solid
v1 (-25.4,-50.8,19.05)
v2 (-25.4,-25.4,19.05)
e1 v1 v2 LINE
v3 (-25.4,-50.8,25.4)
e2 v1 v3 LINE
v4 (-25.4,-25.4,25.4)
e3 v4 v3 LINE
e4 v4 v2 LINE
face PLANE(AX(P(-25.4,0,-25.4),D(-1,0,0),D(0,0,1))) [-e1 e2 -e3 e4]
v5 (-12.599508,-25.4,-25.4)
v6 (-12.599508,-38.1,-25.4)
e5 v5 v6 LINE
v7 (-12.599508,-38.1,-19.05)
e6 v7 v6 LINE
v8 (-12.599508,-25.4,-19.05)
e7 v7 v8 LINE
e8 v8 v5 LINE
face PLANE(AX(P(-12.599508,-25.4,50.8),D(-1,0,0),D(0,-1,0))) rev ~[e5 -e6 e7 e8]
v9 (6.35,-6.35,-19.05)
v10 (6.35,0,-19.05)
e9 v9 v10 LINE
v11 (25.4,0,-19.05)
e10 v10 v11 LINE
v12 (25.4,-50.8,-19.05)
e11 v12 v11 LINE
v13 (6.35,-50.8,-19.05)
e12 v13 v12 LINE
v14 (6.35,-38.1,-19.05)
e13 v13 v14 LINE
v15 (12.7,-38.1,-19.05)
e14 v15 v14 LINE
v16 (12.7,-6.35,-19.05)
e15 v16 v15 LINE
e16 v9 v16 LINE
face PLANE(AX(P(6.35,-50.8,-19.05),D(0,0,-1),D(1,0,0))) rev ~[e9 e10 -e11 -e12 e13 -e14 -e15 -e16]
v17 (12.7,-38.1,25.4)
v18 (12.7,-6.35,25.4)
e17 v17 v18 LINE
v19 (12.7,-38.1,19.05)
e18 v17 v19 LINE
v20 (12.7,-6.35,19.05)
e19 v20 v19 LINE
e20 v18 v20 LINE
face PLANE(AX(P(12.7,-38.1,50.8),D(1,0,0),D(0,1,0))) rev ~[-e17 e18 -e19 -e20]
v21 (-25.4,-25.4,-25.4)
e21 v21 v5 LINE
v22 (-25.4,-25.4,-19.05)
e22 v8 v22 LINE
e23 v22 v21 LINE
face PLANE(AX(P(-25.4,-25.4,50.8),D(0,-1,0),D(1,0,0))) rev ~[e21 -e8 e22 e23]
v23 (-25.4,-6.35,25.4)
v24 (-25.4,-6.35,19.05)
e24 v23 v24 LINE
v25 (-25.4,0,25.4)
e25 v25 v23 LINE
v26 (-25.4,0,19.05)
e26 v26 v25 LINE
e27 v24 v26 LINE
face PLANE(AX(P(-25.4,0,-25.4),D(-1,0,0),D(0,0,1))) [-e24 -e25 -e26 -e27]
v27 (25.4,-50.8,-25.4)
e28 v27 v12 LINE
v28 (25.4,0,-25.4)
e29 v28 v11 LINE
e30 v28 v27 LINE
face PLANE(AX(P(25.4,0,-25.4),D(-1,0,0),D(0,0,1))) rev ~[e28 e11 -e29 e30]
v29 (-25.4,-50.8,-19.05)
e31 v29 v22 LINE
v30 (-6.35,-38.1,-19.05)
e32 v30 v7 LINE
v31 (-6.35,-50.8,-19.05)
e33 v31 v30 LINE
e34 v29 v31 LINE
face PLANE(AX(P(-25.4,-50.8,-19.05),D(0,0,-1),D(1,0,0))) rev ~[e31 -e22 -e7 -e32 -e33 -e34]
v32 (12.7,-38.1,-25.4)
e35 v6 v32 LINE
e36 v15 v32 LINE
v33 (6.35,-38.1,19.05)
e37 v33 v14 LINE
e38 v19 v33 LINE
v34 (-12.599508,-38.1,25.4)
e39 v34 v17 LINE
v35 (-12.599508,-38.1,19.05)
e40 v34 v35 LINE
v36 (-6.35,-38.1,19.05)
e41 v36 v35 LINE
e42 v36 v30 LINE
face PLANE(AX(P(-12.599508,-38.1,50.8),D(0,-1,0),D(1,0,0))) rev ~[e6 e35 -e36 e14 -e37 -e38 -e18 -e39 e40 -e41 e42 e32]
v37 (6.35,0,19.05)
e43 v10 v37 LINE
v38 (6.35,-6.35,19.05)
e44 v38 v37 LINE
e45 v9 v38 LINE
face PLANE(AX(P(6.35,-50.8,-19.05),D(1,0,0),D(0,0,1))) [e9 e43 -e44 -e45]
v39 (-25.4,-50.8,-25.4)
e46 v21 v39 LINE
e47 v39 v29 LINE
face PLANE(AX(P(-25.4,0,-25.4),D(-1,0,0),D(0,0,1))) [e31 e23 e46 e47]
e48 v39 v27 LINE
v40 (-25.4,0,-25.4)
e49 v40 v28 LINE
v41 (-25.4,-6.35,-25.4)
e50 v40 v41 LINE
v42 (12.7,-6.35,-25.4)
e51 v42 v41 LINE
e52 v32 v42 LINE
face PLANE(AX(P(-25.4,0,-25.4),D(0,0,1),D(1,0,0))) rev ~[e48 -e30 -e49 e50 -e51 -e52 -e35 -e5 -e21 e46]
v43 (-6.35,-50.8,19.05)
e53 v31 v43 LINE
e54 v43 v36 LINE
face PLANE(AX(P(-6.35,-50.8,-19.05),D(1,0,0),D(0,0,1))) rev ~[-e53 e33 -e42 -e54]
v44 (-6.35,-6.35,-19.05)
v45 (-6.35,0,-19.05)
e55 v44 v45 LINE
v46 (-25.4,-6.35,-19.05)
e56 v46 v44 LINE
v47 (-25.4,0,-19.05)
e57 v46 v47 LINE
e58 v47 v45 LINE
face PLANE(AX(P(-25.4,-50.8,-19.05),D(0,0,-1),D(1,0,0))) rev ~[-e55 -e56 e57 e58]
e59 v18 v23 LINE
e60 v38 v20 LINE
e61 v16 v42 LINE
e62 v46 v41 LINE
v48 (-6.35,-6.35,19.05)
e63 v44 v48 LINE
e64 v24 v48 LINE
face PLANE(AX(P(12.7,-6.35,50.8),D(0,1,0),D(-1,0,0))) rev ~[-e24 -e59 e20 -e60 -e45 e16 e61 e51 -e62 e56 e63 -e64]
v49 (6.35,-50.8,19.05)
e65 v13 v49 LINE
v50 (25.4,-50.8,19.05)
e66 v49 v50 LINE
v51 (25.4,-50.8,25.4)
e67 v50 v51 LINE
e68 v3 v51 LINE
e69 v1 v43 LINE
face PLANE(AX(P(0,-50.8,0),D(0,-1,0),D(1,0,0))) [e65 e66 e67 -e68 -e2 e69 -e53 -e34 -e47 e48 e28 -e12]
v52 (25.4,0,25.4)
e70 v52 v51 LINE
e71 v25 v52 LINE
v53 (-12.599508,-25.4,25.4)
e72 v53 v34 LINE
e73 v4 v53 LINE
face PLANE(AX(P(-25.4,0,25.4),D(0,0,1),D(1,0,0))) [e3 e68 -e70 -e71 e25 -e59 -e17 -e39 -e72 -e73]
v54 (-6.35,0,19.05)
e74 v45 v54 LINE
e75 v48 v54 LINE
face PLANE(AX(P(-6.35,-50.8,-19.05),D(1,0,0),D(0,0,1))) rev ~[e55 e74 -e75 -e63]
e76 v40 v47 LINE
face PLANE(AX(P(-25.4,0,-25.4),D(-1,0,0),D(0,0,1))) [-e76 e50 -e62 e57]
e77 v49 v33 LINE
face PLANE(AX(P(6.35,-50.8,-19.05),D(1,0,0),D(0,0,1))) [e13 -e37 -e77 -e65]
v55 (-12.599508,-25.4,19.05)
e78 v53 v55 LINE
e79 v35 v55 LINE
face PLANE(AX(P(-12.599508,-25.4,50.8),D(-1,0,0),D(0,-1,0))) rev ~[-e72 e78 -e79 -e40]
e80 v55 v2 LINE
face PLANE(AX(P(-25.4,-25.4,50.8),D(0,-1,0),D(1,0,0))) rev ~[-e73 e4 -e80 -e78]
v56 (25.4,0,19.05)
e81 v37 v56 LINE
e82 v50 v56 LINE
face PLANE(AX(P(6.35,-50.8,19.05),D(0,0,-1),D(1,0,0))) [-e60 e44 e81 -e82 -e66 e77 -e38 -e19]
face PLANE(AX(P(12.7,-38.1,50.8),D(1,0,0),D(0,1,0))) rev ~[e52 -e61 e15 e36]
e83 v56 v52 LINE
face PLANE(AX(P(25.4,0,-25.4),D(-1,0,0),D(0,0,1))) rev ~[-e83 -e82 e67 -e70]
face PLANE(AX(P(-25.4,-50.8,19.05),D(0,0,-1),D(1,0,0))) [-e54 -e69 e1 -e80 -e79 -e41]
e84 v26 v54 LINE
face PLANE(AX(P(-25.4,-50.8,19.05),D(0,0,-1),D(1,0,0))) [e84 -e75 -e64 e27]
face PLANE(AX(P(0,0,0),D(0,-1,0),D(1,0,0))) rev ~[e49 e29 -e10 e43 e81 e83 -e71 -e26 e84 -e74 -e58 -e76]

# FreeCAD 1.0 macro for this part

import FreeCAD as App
import Part
import Sketcher
from FreeCAD import Vector
Q = App.Units.Quantity

doc = App.newDocument("Part")
body = doc.addObject("PartDesign::Body", "Body")

# Sketch on XZ plane
sketch1 = body.newObject("Sketcher::SketchObject", "Sketch")
sketch1.AttachmentSupport = (doc.getObject("XZ_Plane"), [""])
sketch1.MapMode = "FlatFace"
sketch1.addGeometry(Part.LineSegment(Vector(-25, 25, 0), Vector(-25, -25, 0)), False)
sketch1.addGeometry(Part.LineSegment(Vector(-25, -25, 0), Vector(25, -25, 0)), False)
sketch1.addGeometry(Part.LineSegment(Vector(25, -25, 0), Vector(25, 25, 0)), False)
sketch1.addGeometry(Part.LineSegment(Vector(25, 25, 0), Vector(-25, 25, 0)), False)
sketch1.addConstraint(Sketcher.Constraint("Coincident", 0, 2, 1, 1))
sketch1.addConstraint(Sketcher.Constraint("Coincident", 1, 2, 2, 1))
sketch1.addConstraint(Sketcher.Constraint("Coincident", 2, 2, 3, 1))
sketch1.addConstraint(Sketcher.Constraint("Coincident", 3, 2, 0, 1))
sketch1.addConstraint(Sketcher.Constraint("Vertical", 0))
sketch1.addConstraint(Sketcher.Constraint("Horizontal", 1))
sketch1.addConstraint(Sketcher.Constraint("Vertical", 2))
sketch1.addConstraint(Sketcher.Constraint("Horizontal", 3))
sketch1.addConstraint(Sketcher.Constraint("Symmetric", 0, 2, 2, 2, -1, 1))
sketch1.addConstraint(Sketcher.Constraint("Equal", 3, 0))
sketch1.addConstraint(Sketcher.Constraint("DistanceX", 1, 1, 1, 2, Q("2 in")))
pad1 = body.newObject("PartDesign::Pad", "Pad")
pad1.Profile = sketch1
pad1.Length = Q("2 in")

# Sketch on XZ plane
sketch2 = body.newObject("Sketcher::SketchObject", "Sketch001")
sketch2.AttachmentSupport = (doc.getObject("XZ_Plane"), [""])
sketch2.MapMode = "FlatFace"
sketch2.AttachmentOffset = App.Placement(Vector(0, 0, 2 * 25.4), App.Rotation())
sketch2.addGeometry(Part.LineSegment(Vector(-25, 19, 0), Vector(-25, -19, 0)), False)
sketch2.addGeometry(Part.LineSegment(Vector(-25, -19, 0), Vector(-6, -19, 0)), False)
sketch2.addGeometry(Part.LineSegment(Vector(-6, -19, 0), Vector(-6, 19, 0)), False)
sketch2.addGeometry(Part.LineSegment(Vector(-6, 19, 0), Vector(-25, 19, 0)), False)
sketch2.addGeometry(Part.LineSegment(Vector(6, 19, 0), Vector(6, -19, 0)), False)
sketch2.addGeometry(Part.LineSegment(Vector(6, -19, 0), Vector(25, -19, 0)), False)
sketch2.addGeometry(Part.LineSegment(Vector(25, -19, 0), Vector(25, 19, 0)), False)
sketch2.addGeometry(Part.LineSegment(Vector(25, 19, 0), Vector(6, 19, 0)), False)
sketch2.addConstraint(Sketcher.Constraint("Coincident", 0, 2, 1, 1))
sketch2.addConstraint(Sketcher.Constraint("Coincident", 1, 2, 2, 1))
sketch2.addConstraint(Sketcher.Constraint("Coincident", 2, 2, 3, 1))
sketch2.addConstraint(Sketcher.Constraint("Coincident", 3, 2, 0, 1))
sketch2.addConstraint(Sketcher.Constraint("Coincident", 4, 2, 5, 1))
sketch2.addConstraint(Sketcher.Constraint("Coincident", 5, 2, 6, 1))
sketch2.addConstraint(Sketcher.Constraint("Coincident", 6, 2, 7, 1))
sketch2.addConstraint(Sketcher.Constraint("Coincident", 7, 2, 4, 1))
sketch2.addConstraint(Sketcher.Constraint("Vertical", 0))
sketch2.addConstraint(Sketcher.Constraint("Horizontal", 1))
sketch2.addConstraint(Sketcher.Constraint("Vertical", 2))
sketch2.addConstraint(Sketcher.Constraint("Horizontal", 3))
sketch2.addConstraint(Sketcher.Constraint("Vertical", 4))
sketch2.addConstraint(Sketcher.Constraint("Horizontal", 5))
sketch2.addConstraint(Sketcher.Constraint("Vertical", 6))
sketch2.addConstraint(Sketcher.Constraint("Horizontal", 7))
sketch2.addConstraint(Sketcher.Constraint("Symmetric", 2, 2, 4, 2, -1, 1))
sketch2.addConstraint(Sketcher.Constraint("Symmetric", 0, 2, 6, 2, -1, 1))
sketch2.addConstraint(Sketcher.Constraint("Horizontal", 1, 2, 4, 2))
sketch2.addConstraint(Sketcher.Constraint("DistanceY", 0, 2, 0, 1, Q("1.5 in")))
sketch2.addConstraint(Sketcher.Constraint("DistanceX", 0, 2, -1, 1, Q("1 in")))
sketch2.addConstraint(Sketcher.Constraint("DistanceX", 1, 1, 1, 2, Q("0.75 in")))
pocket1 = body.newObject("PartDesign::Pocket", "Pocket")
pocket1.Profile = sketch2
pocket1.Length = Q("2 in")

# Sketch on XY plane
sketch3 = body.newObject("Sketcher::SketchObject", "Sketch002")
sketch3.AttachmentSupport = (doc.getObject("XY_Plane"), [""])
sketch3.MapMode = "FlatFace"
sketch3.AttachmentOffset = App.Placement(Vector(0, 0, 2 * 25.4), App.Rotation())
sketch3.addGeometry(Part.LineSegment(Vector(-25, -6, 0), Vector(-25, -25, 0)), False)
sketch3.addGeometry(Part.LineSegment(Vector(-25, -25, 0), Vector(-13, -25, 0)), False)
sketch3.addGeometry(Part.LineSegment(Vector(-13, -25, 0), Vector(-13, -38, 0)), False)
sketch3.addGeometry(Part.LineSegment(Vector(-13, -38, 0), Vector(13, -38, 0)), False)
sketch3.addGeometry(Part.LineSegment(Vector(13, -38, 0), Vector(13, -6, 0)), False)
sketch3.addGeometry(Part.LineSegment(Vector(13, -6, 0), Vector(-25, -6, 0)), False)
sketch3.addConstraint(Sketcher.Constraint("Coincident", 0, 2, 1, 1))
sketch3.addConstraint(Sketcher.Constraint("Coincident", 1, 2, 2, 1))
sketch3.addConstraint(Sketcher.Constraint("Coincident", 2, 2, 3, 1))
sketch3.addConstraint(Sketcher.Constraint("Coincident", 3, 2, 4, 1))
sketch3.addConstraint(Sketcher.Constraint("Coincident", 4, 2, 5, 1))
sketch3.addConstraint(Sketcher.Constraint("Coincident", 5, 2, 0, 1))
sketch3.addConstraint(Sketcher.Constraint("Vertical", 0))
sketch3.addConstraint(Sketcher.Constraint("Horizontal", 1))
sketch3.addConstraint(Sketcher.Constraint("Vertical", 2))
sketch3.addConstraint(Sketcher.Constraint("Horizontal", 3))
sketch3.addConstraint(Sketcher.Constraint("Vertical", 4))
sketch3.addConstraint(Sketcher.Constraint("Horizontal", 5))
sketch3.addConstraint(Sketcher.Constraint("DistanceX", 5, 2, 5, 1, Q("1.5 in")))
sketch3.addConstraint(Sketcher.Constraint("DistanceY", 2, 2, 2, 1, Q("0.5 in")))
sketch3.addConstraint(Sketcher.Constraint("DistanceX", 0, 2, -1, 1, Q("1 in")))
sketch3.addConstraint(Sketcher.Constraint("DistanceY", 0, 2, -1, 1, Q("1 in")))
sketch3.addConstraint(Sketcher.Constraint("DistanceY", 0, 2, 0, 1, Q("0.75 in")))
sketch3.addConstraint(Sketcher.Constraint("DistanceX", 1, 1, 1, 2, Q("12.800492 mm")))
pocket2 = body.newObject("PartDesign::Pocket", "Pocket001")
pocket2.Profile = sketch3
pocket2.Length = Q("3 in")

doc.recompute()
